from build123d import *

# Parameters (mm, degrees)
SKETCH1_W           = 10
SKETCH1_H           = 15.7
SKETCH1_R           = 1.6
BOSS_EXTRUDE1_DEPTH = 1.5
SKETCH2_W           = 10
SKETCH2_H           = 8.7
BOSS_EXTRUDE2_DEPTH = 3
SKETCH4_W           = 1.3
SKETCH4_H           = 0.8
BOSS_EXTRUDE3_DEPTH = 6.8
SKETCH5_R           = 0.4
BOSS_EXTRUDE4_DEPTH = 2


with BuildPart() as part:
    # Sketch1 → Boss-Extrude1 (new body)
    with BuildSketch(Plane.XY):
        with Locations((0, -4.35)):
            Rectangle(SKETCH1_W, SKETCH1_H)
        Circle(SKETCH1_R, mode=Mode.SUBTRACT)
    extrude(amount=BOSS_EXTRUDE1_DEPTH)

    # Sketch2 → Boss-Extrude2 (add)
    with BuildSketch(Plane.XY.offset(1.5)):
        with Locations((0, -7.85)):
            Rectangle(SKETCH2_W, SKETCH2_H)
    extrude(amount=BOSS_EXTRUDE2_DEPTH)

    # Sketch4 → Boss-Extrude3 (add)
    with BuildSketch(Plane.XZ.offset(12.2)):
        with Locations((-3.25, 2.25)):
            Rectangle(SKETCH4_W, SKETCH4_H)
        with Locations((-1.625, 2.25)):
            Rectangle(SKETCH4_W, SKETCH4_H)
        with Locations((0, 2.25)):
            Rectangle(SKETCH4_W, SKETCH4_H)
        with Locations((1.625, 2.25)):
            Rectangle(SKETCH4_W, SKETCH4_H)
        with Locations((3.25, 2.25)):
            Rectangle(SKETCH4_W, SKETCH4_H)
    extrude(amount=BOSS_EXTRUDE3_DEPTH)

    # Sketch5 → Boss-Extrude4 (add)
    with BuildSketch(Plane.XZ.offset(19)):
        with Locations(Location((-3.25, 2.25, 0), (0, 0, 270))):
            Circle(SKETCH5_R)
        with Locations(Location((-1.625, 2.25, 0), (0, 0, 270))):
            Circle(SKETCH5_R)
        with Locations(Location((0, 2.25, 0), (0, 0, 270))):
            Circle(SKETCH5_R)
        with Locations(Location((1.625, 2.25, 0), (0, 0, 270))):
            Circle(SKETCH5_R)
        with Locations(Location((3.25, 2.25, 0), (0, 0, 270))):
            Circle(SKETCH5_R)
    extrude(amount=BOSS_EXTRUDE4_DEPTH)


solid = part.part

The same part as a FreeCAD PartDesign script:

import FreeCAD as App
import Part
import Sketcher
from FreeCAD import Vector

doc = App.newDocument("Part")
body = doc.addObject("PartDesign::Body", "Body")

# Sketch on XY plane
sketch1 = doc.addObject("Sketcher::SketchObject", "Sketch")
body.addObject(sketch1)
sketch1.AttachmentSupport = (doc.XY_Plane, [""])
sketch1.MapMode = "FlatFace"
sketch1.addGeometry(Part.LineSegment(Vector(-5, 3.5, 0), Vector(-5, -12.2, 0)), False)
sketch1.addGeometry(Part.LineSegment(Vector(-5, -12.2, 0), Vector(5, -12.2, 0)), False)
sketch1.addGeometry(Part.LineSegment(Vector(5, -12.2, 0), Vector(5, 3.5, 0)), False)
sketch1.addGeometry(Part.LineSegment(Vector(5, 3.5, 0), Vector(-5, 3.5, 0)), False)
sketch1.addGeometry(Part.Circle(Vector(0, 0, 0), Vector(0, 0, 1), 1.6), False)
sketch1.addConstraint(Sketcher.Constraint("Coincident", 0, 2, 1, 1))
sketch1.addConstraint(Sketcher.Constraint("Coincident", 1, 2, 2, 1))
sketch1.addConstraint(Sketcher.Constraint("Coincident", 2, 2, 3, 1))
sketch1.addConstraint(Sketcher.Constraint("Coincident", 3, 2, 0, 1))
sketch1.addConstraint(Sketcher.Constraint("Vertical", 0))
sketch1.addConstraint(Sketcher.Constraint("Horizontal", 1))
sketch1.addConstraint(Sketcher.Constraint("Vertical", 2))
sketch1.addConstraint(Sketcher.Constraint("Horizontal", 3))
sketch1.addConstraint(Sketcher.Constraint("Coincident", 4, 3, -1, 1))
sketch1.addConstraint(Sketcher.Constraint("Diameter", 4, 3.2))
sketch1.addConstraint(Sketcher.Constraint("DistanceX", 1, 1, 1, 2, 10.0))
sketch1.addConstraint(Sketcher.Constraint("DistanceY", 0, 2, 0, 1, 15.7))
sketch1.addConstraint(Sketcher.Constraint("DistanceX", 0, 2, -1, 1, 5.0))
sketch1.addConstraint(Sketcher.Constraint("DistanceY", 0, 2, -1, 1, 12.2))
pad1 = doc.addObject("PartDesign::Pad", "Pad")
body.addObject(pad1)
pad1.Profile = sketch1
pad1.Length = 1.5

# Sketch on XY plane
sketch2 = doc.addObject("Sketcher::SketchObject", "Sketch001")
body.addObject(sketch2)
sketch2.AttachmentSupport = (doc.XY_Plane, [""])
sketch2.MapMode = "FlatFace"
sketch2.AttachmentOffset = App.Placement(Vector(0, 0, 1.5), App.Rotation())
sketch2.addGeometry(Part.LineSegment(Vector(-5, -3.5, 0), Vector(-5, -12.2, 0)), False)
sketch2.addGeometry(Part.LineSegment(Vector(-5, -12.2, 0), Vector(5, -12.2, 0)), False)
sketch2.addGeometry(Part.LineSegment(Vector(5, -12.2, 0), Vector(5, -3.5, 0)), False)
sketch2.addGeometry(Part.LineSegment(Vector(5, -3.5, 0), Vector(-5, -3.5, 0)), False)
sketch2.addConstraint(Sketcher.Constraint("Coincident", 0, 2, 1, 1))
sketch2.addConstraint(Sketcher.Constraint("Coincident", 1, 2, 2, 1))
sketch2.addConstraint(Sketcher.Constraint("Coincident", 2, 2, 3, 1))
sketch2.addConstraint(Sketcher.Constraint("Coincident", 3, 2, 0, 1))
sketch2.addConstraint(Sketcher.Constraint("Vertical", 0))
sketch2.addConstraint(Sketcher.Constraint("Horizontal", 1))
sketch2.addConstraint(Sketcher.Constraint("Vertical", 2))
sketch2.addConstraint(Sketcher.Constraint("Horizontal", 3))
sketch2.addConstraint(Sketcher.Constraint("DistanceX", 1, 1, 1, 2, 10.0))
sketch2.addConstraint(Sketcher.Constraint("DistanceY", 0, 2, 0, 1, 8.7))
sketch2.addConstraint(Sketcher.Constraint("DistanceX", 0, 2, -1, 1, 5.0))
sketch2.addConstraint(Sketcher.Constraint("DistanceY", 0, 2, -1, 1, 12.2))
pad2 = doc.addObject("PartDesign::Pad", "Pad001")
body.addObject(pad2)
pad2.Profile = sketch2
pad2.Length = 3

# Sketch on XZ plane
sketch3 = doc.addObject("Sketcher::SketchObject", "Sketch002")
body.addObject(sketch3)
sketch3.AttachmentSupport = (doc.XZ_Plane, [""])
sketch3.MapMode = "FlatFace"
sketch3.AttachmentOffset = App.Placement(Vector(0, 0, 12.2), App.Rotation())
sketch3.addGeometry(Part.LineSegment(Vector(-3.9, 2.65, 0), Vector(-3.9, 1.85, 0)), False)
sketch3.addGeometry(Part.LineSegment(Vector(-3.9, 1.85, 0), Vector(-2.6, 1.85, 0)), False)
sketch3.addGeometry(Part.LineSegment(Vector(-2.6, 1.85, 0), Vector(-2.6, 2.65, 0)), False)
sketch3.addGeometry(Part.LineSegment(Vector(-2.6, 2.65, 0), Vector(-3.9, 2.65, 0)), False)
sketch3.addGeometry(Part.LineSegment(Vector(-2.275, 2.65, 0), Vector(-2.275, 1.85, 0)), False)
sketch3.addGeometry(Part.LineSegment(Vector(-2.275, 1.85, 0), Vector(-0.975, 1.85, 0)), False)
sketch3.addGeometry(Part.LineSegment(Vector(-0.975, 1.85, 0), Vector(-0.975, 2.65, 0)), False)
sketch3.addGeometry(Part.LineSegment(Vector(-0.975, 2.65, 0), Vector(-2.275, 2.65, 0)), False)
sketch3.addGeometry(Part.LineSegment(Vector(-0.65, 2.65, 0), Vector(-0.65, 1.85, 0)), False)
sketch3.addGeometry(Part.LineSegment(Vector(-0.65, 1.85, 0), Vector(0.65, 1.85, 0)), False)
sketch3.addGeometry(Part.LineSegment(Vector(0.65, 1.85, 0), Vector(0.65, 2.65, 0)), False)
sketch3.addGeometry(Part.LineSegment(Vector(0.65, 2.65, 0), Vector(-0.65, 2.65, 0)), False)
sketch3.addGeometry(Part.LineSegment(Vector(0.975, 2.65, 0), Vector(0.975, 1.85, 0)), False)
sketch3.addGeometry(Part.LineSegment(Vector(0.975, 1.85, 0), Vector(2.275, 1.85, 0)), False)
sketch3.addGeometry(Part.LineSegment(Vector(2.275, 1.85, 0), Vector(2.275, 2.65, 0)), False)
sketch3.addGeometry(Part.LineSegment(Vector(2.275, 2.65, 0), Vector(0.975, 2.65, 0)), False)
sketch3.addGeometry(Part.LineSegment(Vector(2.6, 2.65, 0), Vector(2.6, 1.85, 0)), False)
sketch3.addGeometry(Part.LineSegment(Vector(2.6, 1.85, 0), Vector(3.9, 1.85, 0)), False)
sketch3.addGeometry(Part.LineSegment(Vector(3.9, 1.85, 0), Vector(3.9, 2.65, 0)), False)
sketch3.addGeometry(Part.LineSegment(Vector(3.9, 2.65, 0), Vector(2.6, 2.65, 0)), False)
sketch3.addConstraint(Sketcher.Constraint("Coincident", 0, 2, 1, 1))
sketch3.addConstraint(Sketcher.Constraint("Coincident", 1, 2, 2, 1))
sketch3.addConstraint(Sketcher.Constraint("Coincident", 2, 2, 3, 1))
sketch3.addConstraint(Sketcher.Constraint("Coincident", 3, 2, 0, 1))
sketch3.addConstraint(Sketcher.Constraint("Coincident", 4, 2, 5, 1))
sketch3.addConstraint(Sketcher.Constraint("Coincident", 5, 2, 6, 1))
sketch3.addConstraint(Sketcher.Constraint("Coincident", 6, 2, 7, 1))
sketch3.addConstraint(Sketcher.Constraint("Coincident", 7, 2, 4, 1))
sketch3.addConstraint(Sketcher.Constraint("Coincident", 8, 2, 9, 1))
sketch3.addConstraint(Sketcher.Constraint("Coincident", 9, 2, 10, 1))
sketch3.addConstraint(Sketcher.Constraint("Coincident", 10, 2, 11, 1))
sketch3.addConstraint(Sketcher.Constraint("Coincident", 11, 2, 8, 1))
sketch3.addConstraint(Sketcher.Constraint("Coincident", 12, 2, 13, 1))
sketch3.addConstraint(Sketcher.Constraint("Coincident", 13, 2, 14, 1))
sketch3.addConstraint(Sketcher.Constraint("Coincident", 14, 2, 15, 1))
sketch3.addConstraint(Sketcher.Constraint("Coincident", 15, 2, 12, 1))
sketch3.addConstraint(Sketcher.Constraint("Coincident", 16, 2, 17, 1))
sketch3.addConstraint(Sketcher.Constraint("Coincident", 17, 2, 18, 1))
sketch3.addConstraint(Sketcher.Constraint("Coincident", 18, 2, 19, 1))
sketch3.addConstraint(Sketcher.Constraint("Coincident", 19, 2, 16, 1))
sketch3.addConstraint(Sketcher.Constraint("Vertical", 0))
sketch3.addConstraint(Sketcher.Constraint("Horizontal", 1))
sketch3.addConstraint(Sketcher.Constraint("Vertical", 2))
sketch3.addConstraint(Sketcher.Constraint("Horizontal", 3))
sketch3.addConstraint(Sketcher.Constraint("Vertical", 4))
sketch3.addConstraint(Sketcher.Constraint("Horizontal", 5))
sketch3.addConstraint(Sketcher.Constraint("Vertical", 6))
sketch3.addConstraint(Sketcher.Constraint("Horizontal", 7))
sketch3.addConstraint(Sketcher.Constraint("Vertical", 8))
sketch3.addConstraint(Sketcher.Constraint("Horizontal", 9))
sketch3.addConstraint(Sketcher.Constraint("Vertical", 10))
sketch3.addConstraint(Sketcher.Constraint("Horizontal", 11))
sketch3.addConstraint(Sketcher.Constraint("Vertical", 12))
sketch3.addConstraint(Sketcher.Constraint("Horizontal", 13))
sketch3.addConstraint(Sketcher.Constraint("Vertical", 14))
sketch3.addConstraint(Sketcher.Constraint("Horizontal", 15))
sketch3.addConstraint(Sketcher.Constraint("Vertical", 16))
sketch3.addConstraint(Sketcher.Constraint("Horizontal", 17))
sketch3.addConstraint(Sketcher.Constraint("Vertical", 18))
sketch3.addConstraint(Sketcher.Constraint("Horizontal", 19))
sketch3.addConstraint(Sketcher.Constraint("Symmetric", 5, 2, 12, 2, -2))
sketch3.addConstraint(Sketcher.Constraint("Symmetric", 7, 2, 14, 2, -2))
sketch3.addConstraint(Sketcher.Constraint("Symmetric", 1, 2, 16, 2, -2))
sketch3.addConstraint(Sketcher.Constraint("Symmetric", 3, 2, 18, 2, -2))
sketch3.addConstraint(Sketcher.Constraint("Horizontal", 1, 2, 4, 2))
sketch3.addConstraint(Sketcher.Constraint("Horizontal", 3, 2, 6, 2))
sketch3.addConstraint(Sketcher.Constraint("Horizontal", 5, 2, 8, 2))
sketch3.addConstraint(Sketcher.Constraint("Horizontal", 7, 2, 10, 2))
sketch3.addConstraint(Sketcher.Constraint("Equal", 3, 5))
sketch3.addConstraint(Sketcher.Constraint("Equal", 7, 9))
sketch3.addConstraint(Sketcher.Constraint("DistanceX", 1, 1, 1, 2, 1.3))
sketch3.addConstraint(Sketcher.Constraint("DistanceY", 0, 2, 0, 1, 0.8))
sketch3.addConstraint(Sketcher.Constraint("DistanceX", 0, 2, -1, 1, 3.9))
sketch3.addConstraint(Sketcher.Constraint("DistanceY", -1, 1, 0, 2, 1.85))
sketch3.addConstraint(Sketcher.Constraint("DistanceX", 8, 2, -1, 1, 0.65))
sketch3.addConstraint(Sketcher.Constraint("DistanceX", 5, 2, 12, 2, 1.95))
pad3 = doc.addObject("PartDesign::Pad", "Pad002")
body.addObject(pad3)
pad3.Profile = sketch3
pad3.Length = 6.8

# Sketch on XZ plane
sketch4 = doc.addObject("Sketcher::SketchObject", "Sketch003")
body.addObject(sketch4)
sketch4.AttachmentSupport = (doc.XZ_Plane, [""])
sketch4.MapMode = "FlatFace"
sketch4.AttachmentOffset = App.Placement(Vector(0, 0, 19), App.Rotation())
sketch4.addGeometry(Part.Circle(Vector(-3.25, 2.25, 0), Vector(0, 0, 1), 0.4), False)
sketch4.addGeometry(Part.Circle(Vector(-1.625, 2.25, 0), Vector(0, 0, 1), 0.4), False)
sketch4.addGeometry(Part.Circle(Vector(0, 2.25, 0), Vector(0, 0, 1), 0.4), False)
sketch4.addGeometry(Part.Circle(Vector(1.625, 2.25, 0), Vector(0, 0, 1), 0.4), False)
sketch4.addGeometry(Part.Circle(Vector(3.25, 2.25, 0), Vector(0, 0, 1), 0.4), False)
sketch4.addConstraint(Sketcher.Constraint("Equal", 0, 1))
sketch4.addConstraint(Sketcher.Constraint("Equal", 1, 2))
sketch4.addConstraint(Sketcher.Constraint("Equal", 2, 3))
sketch4.addConstraint(Sketcher.Constraint("Equal", 3, 4))
sketch4.addConstraint(Sketcher.Constraint("Symmetric", 1, 3, 3, 3, -2))
sketch4.addConstraint(Sketcher.Constraint("Symmetric", 0, 3, 4, 3, -2))
sketch4.addConstraint(Sketcher.Constraint("PointOnObject", 2, 3, -2))
sketch4.addConstraint(Sketcher.Constraint("Horizontal", 0, 3, 1, 3))
sketch4.addConstraint(Sketcher.Constraint("Horizontal", 1, 3, 2, 3))
sketch4.addConstraint(Sketcher.Constraint("Diameter", 0, 0.8))
sketch4.addConstraint(Sketcher.Constraint("DistanceX", 0, 3, 4, 3, 6.5))
sketch4.addConstraint(Sketcher.Constraint("DistanceY", -1, 1, 0, 3, 2.25))
sketch4.addConstraint(Sketcher.Constraint("DistanceX", 1, 3, 3, 3, 3.25))
pad4 = doc.addObject("PartDesign::Pad", "Pad003")
body.addObject(pad4)
pad4.Profile = sketch4
pad4.Length = 2

doc.recompute()
